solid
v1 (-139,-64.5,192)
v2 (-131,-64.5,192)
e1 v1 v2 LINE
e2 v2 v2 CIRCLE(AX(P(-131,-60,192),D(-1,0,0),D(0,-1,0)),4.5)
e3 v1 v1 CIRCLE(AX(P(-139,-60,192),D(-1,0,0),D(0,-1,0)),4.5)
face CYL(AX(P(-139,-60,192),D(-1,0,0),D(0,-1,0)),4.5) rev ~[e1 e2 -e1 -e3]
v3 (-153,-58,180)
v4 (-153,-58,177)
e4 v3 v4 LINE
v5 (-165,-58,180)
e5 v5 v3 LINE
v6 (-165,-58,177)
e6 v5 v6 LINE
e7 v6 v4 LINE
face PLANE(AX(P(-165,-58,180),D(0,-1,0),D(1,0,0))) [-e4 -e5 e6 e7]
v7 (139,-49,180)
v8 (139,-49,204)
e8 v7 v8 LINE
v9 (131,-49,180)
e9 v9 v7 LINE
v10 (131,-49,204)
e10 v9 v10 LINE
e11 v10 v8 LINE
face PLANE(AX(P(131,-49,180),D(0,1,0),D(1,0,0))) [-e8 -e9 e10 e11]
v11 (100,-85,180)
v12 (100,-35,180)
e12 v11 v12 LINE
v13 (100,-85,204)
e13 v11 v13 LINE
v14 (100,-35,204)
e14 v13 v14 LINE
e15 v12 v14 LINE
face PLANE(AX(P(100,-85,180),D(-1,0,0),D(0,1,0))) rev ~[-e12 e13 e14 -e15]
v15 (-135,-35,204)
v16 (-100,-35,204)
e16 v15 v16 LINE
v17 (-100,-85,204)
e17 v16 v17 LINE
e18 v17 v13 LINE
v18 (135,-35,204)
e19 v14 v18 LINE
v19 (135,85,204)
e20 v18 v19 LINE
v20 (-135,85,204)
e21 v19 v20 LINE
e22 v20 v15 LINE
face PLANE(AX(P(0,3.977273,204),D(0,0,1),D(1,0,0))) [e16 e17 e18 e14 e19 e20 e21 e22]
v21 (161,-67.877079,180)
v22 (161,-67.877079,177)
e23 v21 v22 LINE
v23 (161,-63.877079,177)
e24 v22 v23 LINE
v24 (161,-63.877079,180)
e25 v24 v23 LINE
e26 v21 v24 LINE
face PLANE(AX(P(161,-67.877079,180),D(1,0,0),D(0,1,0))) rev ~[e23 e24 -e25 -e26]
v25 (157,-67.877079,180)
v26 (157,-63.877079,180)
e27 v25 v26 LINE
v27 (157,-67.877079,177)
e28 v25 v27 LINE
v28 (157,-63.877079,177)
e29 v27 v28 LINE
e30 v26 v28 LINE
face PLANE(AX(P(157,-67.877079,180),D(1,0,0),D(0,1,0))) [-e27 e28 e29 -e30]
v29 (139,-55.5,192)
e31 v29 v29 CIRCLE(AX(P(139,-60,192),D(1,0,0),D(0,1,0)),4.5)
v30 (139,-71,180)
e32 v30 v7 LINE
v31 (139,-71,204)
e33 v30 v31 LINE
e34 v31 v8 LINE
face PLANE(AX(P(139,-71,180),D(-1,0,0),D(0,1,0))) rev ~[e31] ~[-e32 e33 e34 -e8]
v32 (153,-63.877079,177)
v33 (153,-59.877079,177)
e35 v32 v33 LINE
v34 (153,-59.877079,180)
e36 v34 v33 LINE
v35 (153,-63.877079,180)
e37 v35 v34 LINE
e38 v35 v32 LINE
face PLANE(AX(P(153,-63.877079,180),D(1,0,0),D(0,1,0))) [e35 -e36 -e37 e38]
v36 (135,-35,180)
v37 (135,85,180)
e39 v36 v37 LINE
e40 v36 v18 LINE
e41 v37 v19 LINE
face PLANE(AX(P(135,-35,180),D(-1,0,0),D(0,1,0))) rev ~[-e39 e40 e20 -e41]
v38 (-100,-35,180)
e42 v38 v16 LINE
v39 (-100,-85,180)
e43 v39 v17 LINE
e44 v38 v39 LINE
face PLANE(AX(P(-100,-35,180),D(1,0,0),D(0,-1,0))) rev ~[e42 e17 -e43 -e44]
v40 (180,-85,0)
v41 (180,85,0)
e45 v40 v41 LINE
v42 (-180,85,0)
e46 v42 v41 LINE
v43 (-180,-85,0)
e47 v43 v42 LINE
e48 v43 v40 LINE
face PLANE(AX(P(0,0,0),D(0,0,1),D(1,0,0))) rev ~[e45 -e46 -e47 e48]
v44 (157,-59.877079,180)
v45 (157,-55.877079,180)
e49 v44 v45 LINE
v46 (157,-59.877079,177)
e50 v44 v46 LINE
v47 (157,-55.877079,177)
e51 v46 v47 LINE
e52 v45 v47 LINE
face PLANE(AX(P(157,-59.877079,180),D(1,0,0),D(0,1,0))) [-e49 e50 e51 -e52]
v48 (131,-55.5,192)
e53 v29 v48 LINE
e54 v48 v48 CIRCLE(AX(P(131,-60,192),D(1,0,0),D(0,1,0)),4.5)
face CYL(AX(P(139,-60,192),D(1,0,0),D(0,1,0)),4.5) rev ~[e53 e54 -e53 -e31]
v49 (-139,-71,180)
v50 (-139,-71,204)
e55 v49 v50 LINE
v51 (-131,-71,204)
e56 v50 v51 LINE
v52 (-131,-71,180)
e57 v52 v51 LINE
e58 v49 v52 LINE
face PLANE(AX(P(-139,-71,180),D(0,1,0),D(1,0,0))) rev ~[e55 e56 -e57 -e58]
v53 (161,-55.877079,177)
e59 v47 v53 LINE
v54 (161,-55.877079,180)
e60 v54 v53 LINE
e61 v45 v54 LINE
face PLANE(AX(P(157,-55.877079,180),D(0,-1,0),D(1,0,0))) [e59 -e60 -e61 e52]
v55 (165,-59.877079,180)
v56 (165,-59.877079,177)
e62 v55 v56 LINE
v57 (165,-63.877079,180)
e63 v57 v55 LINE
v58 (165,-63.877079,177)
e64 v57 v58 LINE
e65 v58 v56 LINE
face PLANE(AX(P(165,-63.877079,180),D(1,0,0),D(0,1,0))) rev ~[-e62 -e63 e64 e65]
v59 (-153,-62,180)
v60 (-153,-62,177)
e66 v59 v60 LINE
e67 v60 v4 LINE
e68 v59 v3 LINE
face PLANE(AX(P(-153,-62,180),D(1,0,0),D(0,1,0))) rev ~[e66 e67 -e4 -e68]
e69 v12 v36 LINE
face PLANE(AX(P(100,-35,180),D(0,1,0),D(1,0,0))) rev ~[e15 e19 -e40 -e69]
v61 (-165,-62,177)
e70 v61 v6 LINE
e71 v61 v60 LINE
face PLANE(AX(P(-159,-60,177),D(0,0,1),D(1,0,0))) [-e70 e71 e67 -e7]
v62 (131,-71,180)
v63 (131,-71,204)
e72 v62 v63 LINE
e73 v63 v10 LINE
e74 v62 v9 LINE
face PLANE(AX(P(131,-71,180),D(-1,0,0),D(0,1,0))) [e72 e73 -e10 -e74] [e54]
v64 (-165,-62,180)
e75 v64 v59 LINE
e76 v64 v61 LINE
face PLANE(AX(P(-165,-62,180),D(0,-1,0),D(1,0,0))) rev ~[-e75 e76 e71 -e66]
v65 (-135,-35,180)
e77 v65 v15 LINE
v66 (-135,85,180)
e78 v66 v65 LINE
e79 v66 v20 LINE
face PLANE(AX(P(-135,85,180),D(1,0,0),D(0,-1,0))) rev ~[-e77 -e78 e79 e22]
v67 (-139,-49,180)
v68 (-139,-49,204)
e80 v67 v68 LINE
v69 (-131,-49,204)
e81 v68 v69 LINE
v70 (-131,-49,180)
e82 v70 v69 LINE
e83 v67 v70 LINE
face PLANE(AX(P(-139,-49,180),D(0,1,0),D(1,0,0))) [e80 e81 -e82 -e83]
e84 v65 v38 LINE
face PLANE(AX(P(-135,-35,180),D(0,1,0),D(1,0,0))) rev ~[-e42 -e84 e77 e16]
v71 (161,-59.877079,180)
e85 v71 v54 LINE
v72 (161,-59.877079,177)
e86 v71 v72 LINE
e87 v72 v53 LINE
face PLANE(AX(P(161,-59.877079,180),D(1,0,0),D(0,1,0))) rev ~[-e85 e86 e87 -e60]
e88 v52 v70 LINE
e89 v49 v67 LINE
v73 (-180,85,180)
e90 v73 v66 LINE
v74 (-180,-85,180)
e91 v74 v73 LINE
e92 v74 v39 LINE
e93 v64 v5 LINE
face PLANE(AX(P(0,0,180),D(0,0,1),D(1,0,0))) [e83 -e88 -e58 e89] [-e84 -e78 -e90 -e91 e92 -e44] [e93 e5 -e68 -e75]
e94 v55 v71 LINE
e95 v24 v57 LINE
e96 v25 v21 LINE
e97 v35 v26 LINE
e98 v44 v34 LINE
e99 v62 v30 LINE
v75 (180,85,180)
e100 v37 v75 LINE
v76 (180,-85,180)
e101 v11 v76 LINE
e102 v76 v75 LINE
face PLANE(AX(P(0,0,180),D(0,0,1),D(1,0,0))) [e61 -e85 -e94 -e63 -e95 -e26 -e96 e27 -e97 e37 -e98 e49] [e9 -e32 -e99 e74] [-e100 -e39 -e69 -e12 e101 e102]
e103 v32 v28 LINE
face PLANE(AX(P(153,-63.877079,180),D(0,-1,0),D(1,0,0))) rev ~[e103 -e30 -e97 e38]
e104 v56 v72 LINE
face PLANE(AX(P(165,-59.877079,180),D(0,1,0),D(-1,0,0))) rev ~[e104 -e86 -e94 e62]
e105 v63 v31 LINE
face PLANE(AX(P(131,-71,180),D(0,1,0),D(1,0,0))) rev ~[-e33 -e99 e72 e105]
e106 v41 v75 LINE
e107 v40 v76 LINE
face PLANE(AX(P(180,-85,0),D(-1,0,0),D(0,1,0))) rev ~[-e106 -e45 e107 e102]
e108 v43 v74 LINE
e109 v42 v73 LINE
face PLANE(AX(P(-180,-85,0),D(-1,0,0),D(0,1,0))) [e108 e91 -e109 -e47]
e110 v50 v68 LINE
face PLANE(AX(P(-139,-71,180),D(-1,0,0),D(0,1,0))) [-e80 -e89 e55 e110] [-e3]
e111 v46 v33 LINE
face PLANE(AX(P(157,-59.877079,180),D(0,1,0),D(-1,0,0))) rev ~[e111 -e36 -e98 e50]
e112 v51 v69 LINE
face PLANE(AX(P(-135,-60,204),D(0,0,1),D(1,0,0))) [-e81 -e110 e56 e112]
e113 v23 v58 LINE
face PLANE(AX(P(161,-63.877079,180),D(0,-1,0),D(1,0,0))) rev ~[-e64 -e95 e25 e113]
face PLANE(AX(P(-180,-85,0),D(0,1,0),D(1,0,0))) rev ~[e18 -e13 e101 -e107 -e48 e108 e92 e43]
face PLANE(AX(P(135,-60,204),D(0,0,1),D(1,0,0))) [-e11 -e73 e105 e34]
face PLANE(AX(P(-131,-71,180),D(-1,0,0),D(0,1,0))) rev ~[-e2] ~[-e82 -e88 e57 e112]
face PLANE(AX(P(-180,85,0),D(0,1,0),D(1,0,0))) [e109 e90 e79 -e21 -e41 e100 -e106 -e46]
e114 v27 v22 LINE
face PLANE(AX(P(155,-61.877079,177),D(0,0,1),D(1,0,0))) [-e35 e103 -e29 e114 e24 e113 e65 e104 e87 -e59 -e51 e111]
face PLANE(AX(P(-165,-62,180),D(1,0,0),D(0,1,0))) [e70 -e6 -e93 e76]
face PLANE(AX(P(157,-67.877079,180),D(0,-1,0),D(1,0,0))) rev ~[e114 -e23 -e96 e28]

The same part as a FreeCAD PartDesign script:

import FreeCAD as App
import Part
import Sketcher
from FreeCAD import Vector
Q = App.Units.Quantity


def add_polygon(sketch, points):
    """Adds a closed chain of lines whose ends are joined by coincident constraints."""
    first, n = sketch.GeometryCount, len(points)
    for a, b in zip(points, points[1:] + points[:1]):
        sketch.addGeometry(Part.LineSegment(App.Vector(*a, 0), App.Vector(*b, 0)), False)
    for i in range(n):
        sketch.addConstraint(Sketcher.Constraint("Coincident", first + i, 2, first + (i + 1) % n, 1))

doc = App.newDocument("Part")
body = doc.addObject("PartDesign::Body", "Body")

sketch1 = body.newObject("Sketcher::SketchObject", "Sketch")
sketch1.AttachmentSupport = (doc.getObject("XY_Plane"), [""])
sketch1.MapMode = "FlatFace"
add_polygon(sketch1, [(-180, 85), (-180, -85), (180, -85), (180, 85)])
sketch1.addConstraint([
    Sketcher.Constraint("Vertical", 0),
    Sketcher.Constraint("Horizontal", 1),
    Sketcher.Constraint("Vertical", 2),
    Sketcher.Constraint("Horizontal", 3),
    Sketcher.Constraint("Symmetric", 0, 2, 2, 2, -1, 1),
    Sketcher.Constraint("DistanceX", 1, 1, 1, 2, Q("360 mm")),
    Sketcher.Constraint("DistanceY", 0, 2, 0, 1, Q("170 mm")),
])
pad1 = body.newObject("PartDesign::Pad", "Pad")
pad1.Profile = sketch1
pad1.Length = 180

sketch2 = body.newObject("Sketcher::SketchObject", "Sketch001")
sketch2.AttachmentSupport = (doc.getObject("XY_Plane"), [""])
sketch2.MapMode = "FlatFace"
sketch2.AttachmentOffset = App.Placement(Vector(0, 0, 180), App.Rotation())
add_polygon(sketch2, [(-100, -85), (100, -85), (100, -35), (135, -35), (135, 85), (-135, 85), (-135, -35), (-100, -35)])
add_polygon(sketch2, [(-139, -49), (-139, -71), (-131, -71), (-131, -49)])
add_polygon(sketch2, [(131, -49), (131, -71), (139, -71), (139, -49)])
sketch2.addConstraint([
    Sketcher.Constraint("Horizontal", 0),
    Sketcher.Constraint("Vertical", 1),
    Sketcher.Constraint("Horizontal", 2),
    Sketcher.Constraint("Vertical", 3),
    Sketcher.Constraint("Horizontal", 4),
    Sketcher.Constraint("Vertical", 5),
    Sketcher.Constraint("Horizontal", 6),
    Sketcher.Constraint("Vertical", 7),
    Sketcher.Constraint("Vertical", 8),
    Sketcher.Constraint("Horizontal", 9),
    Sketcher.Constraint("Vertical", 10),
    Sketcher.Constraint("Horizontal", 11),
    Sketcher.Constraint("Vertical", 12),
    Sketcher.Constraint("Horizontal", 13),
    Sketcher.Constraint("Vertical", 14),
    Sketcher.Constraint("Horizontal", 15),
    Sketcher.Constraint("Symmetric", 2, 2, 5, 2, -2),
    Sketcher.Constraint("Symmetric", 9, 2, 12, 2, -2),
    Sketcher.Constraint("Symmetric", 11, 2, 14, 2, -2),
    Sketcher.Constraint("Equal", 2, 6),
    Sketcher.Constraint("DistanceX", 0, 1, 0, 2, Q("200 mm")),
    Sketcher.Constraint("DistanceX", 2, 1, 2, 2, Q("35 mm")),
    Sketcher.Constraint("DistanceX", 9, 1, 9, 2, Q("8 mm")),
    Sketcher.Constraint("DistanceY", 1, 1, 1, 2, Q("50 mm")),
    Sketcher.Constraint("DistanceY", 3, 1, 3, 2, Q("120 mm")),
    Sketcher.Constraint("DistanceY", 8, 2, 8, 1, Q("22 mm")),
    Sketcher.Constraint("DistanceY", 0, 2, -1, 1, Q("85 mm")),
    Sketcher.Constraint("DistanceX", 8, 2, -1, 1, Q("139 mm")),
    Sketcher.Constraint("DistanceY", 8, 2, -1, 1, Q("71 mm")),
])
pad2 = body.newObject("PartDesign::Pad", "Pad001")
pad2.Profile = sketch2
pad2.Length = 24

sketch3 = body.newObject("Sketcher::SketchObject", "Sketch002")
sketch3.AttachmentSupport = (doc.getObject("YZ_Plane"), [""])
sketch3.MapMode = "FlatFace"
sketch3.AttachmentOffset = App.Placement(Vector(0, 0, -139), App.Rotation())
sketch3.addGeometry(Part.Circle(Vector(-60, 192, 0), Vector(0, 0, 1), 4.5), False)
sketch3.addConstraint([
    Sketcher.Constraint("Diameter", 0, Q("9 mm")),
    Sketcher.Constraint("DistanceX", 0, 3, -1, 1, Q("60 mm")),
    Sketcher.Constraint("DistanceY", -1, 1, 0, 3, Q("192 mm")),
])
pocket1 = body.newObject("PartDesign::Pocket", "Pocket")
pocket1.Profile = sketch3
pocket1.Length = 25
pocket1.Reversed = True

sketch4 = body.newObject("Sketcher::SketchObject", "Sketch003")
sketch4.AttachmentSupport = (doc.getObject("YZ_Plane"), [""])
sketch4.MapMode = "FlatFace"
sketch4.AttachmentOffset = App.Placement(Vector(0, 0, 139), App.Rotation())
sketch4.addGeometry(Part.Circle(Vector(-60, 192, 0), Vector(0, 0, 1), 4.5), False)
sketch4.addConstraint([
    Sketcher.Constraint("Diameter", 0, Q("9 mm")),
    Sketcher.Constraint("DistanceX", 0, 3, -1, 1, Q("60 mm")),
    Sketcher.Constraint("DistanceY", -1, 1, 0, 3, Q("192 mm")),
])
pocket2 = body.newObject("PartDesign::Pocket", "Pocket001")
pocket2.Profile = sketch4
pocket2.Length = 25

sketch5 = body.newObject("Sketcher::SketchObject", "Sketch004")
sketch5.AttachmentSupport = (doc.getObject("XY_Plane"), [""])
sketch5.MapMode = "FlatFace"
sketch5.AttachmentOffset = App.Placement(Vector(0, 0, 180), App.Rotation())
add_polygon(sketch5, [(-165, -58), (-165, -62), (-153, -62), (-153, -58)])
add_polygon(sketch5, [(153, -59.877079), (153, -63.877079), (157, -63.877079), (157, -67.877079), (161, -67.877079), (161, -63.877079), (165, -63.877079), (165, -59.877079), (161, -59.877079), (161, -55.877079), (157, -55.877079), (157, -59.877079)])
sketch5.addConstraint([
    Sketcher.Constraint("Vertical", 0),
    Sketcher.Constraint("Horizontal", 1),
    Sketcher.Constraint("Vertical", 2),
    Sketcher.Constraint("Horizontal", 3),
    Sketcher.Constraint("Vertical", 4),
    Sketcher.Constraint("Horizontal", 5),
    Sketcher.Constraint("Vertical", 6),
    Sketcher.Constraint("Horizontal", 7),
    Sketcher.Constraint("Vertical", 8),
    Sketcher.Constraint("Horizontal", 9),
    Sketcher.Constraint("Vertical", 10),
    Sketcher.Constraint("Horizontal", 11),
    Sketcher.Constraint("Vertical", 12),
    Sketcher.Constraint("Horizontal", 13),
    Sketcher.Constraint("Vertical", 14),
    Sketcher.Constraint("Horizontal", 15),
    Sketcher.Constraint("Horizontal", 5, 2, 8, 2),
    Sketcher.Constraint("Horizontal", 11, 2, 14, 2),
    Sketcher.Constraint("Vertical", 8, 2, 11, 2),
    Sketcher.Constraint("Vertical", 6, 2, 13, 2),
    Sketcher.Constraint("Equal", 5, 7),
    Sketcher.Constraint("Equal", 7, 9),
    Sketcher.Constraint("Equal", 15, 0),
    Sketcher.Constraint("Equal", 2, 4),
    Sketcher.Constraint("Equal", 4, 6),
    Sketcher.Constraint("Equal", 10, 12),
    Sketcher.Constraint("DistanceX", 1, 1, 1, 2, Q("12 mm")),
    Sketcher.Constraint("DistanceX", 5, 1, 5, 2, Q("4 mm")),
    Sketcher.Constraint("DistanceX", 0, 2, -1, 1, Q("165 mm")),
    Sketcher.Constraint("DistanceY", 0, 2, -1, 1, Q("62 mm")),
    Sketcher.Constraint("DistanceX", -1, 1, 4, 2, Q("153 mm")),
    Sketcher.Constraint("DistanceY", 4, 2, -1, 1, Q("63.877079 mm")),
])
pocket3 = body.newObject("PartDesign::Pocket", "Pocket002")
pocket3.Profile = sketch5
pocket3.Length = 3

doc.recompute()
